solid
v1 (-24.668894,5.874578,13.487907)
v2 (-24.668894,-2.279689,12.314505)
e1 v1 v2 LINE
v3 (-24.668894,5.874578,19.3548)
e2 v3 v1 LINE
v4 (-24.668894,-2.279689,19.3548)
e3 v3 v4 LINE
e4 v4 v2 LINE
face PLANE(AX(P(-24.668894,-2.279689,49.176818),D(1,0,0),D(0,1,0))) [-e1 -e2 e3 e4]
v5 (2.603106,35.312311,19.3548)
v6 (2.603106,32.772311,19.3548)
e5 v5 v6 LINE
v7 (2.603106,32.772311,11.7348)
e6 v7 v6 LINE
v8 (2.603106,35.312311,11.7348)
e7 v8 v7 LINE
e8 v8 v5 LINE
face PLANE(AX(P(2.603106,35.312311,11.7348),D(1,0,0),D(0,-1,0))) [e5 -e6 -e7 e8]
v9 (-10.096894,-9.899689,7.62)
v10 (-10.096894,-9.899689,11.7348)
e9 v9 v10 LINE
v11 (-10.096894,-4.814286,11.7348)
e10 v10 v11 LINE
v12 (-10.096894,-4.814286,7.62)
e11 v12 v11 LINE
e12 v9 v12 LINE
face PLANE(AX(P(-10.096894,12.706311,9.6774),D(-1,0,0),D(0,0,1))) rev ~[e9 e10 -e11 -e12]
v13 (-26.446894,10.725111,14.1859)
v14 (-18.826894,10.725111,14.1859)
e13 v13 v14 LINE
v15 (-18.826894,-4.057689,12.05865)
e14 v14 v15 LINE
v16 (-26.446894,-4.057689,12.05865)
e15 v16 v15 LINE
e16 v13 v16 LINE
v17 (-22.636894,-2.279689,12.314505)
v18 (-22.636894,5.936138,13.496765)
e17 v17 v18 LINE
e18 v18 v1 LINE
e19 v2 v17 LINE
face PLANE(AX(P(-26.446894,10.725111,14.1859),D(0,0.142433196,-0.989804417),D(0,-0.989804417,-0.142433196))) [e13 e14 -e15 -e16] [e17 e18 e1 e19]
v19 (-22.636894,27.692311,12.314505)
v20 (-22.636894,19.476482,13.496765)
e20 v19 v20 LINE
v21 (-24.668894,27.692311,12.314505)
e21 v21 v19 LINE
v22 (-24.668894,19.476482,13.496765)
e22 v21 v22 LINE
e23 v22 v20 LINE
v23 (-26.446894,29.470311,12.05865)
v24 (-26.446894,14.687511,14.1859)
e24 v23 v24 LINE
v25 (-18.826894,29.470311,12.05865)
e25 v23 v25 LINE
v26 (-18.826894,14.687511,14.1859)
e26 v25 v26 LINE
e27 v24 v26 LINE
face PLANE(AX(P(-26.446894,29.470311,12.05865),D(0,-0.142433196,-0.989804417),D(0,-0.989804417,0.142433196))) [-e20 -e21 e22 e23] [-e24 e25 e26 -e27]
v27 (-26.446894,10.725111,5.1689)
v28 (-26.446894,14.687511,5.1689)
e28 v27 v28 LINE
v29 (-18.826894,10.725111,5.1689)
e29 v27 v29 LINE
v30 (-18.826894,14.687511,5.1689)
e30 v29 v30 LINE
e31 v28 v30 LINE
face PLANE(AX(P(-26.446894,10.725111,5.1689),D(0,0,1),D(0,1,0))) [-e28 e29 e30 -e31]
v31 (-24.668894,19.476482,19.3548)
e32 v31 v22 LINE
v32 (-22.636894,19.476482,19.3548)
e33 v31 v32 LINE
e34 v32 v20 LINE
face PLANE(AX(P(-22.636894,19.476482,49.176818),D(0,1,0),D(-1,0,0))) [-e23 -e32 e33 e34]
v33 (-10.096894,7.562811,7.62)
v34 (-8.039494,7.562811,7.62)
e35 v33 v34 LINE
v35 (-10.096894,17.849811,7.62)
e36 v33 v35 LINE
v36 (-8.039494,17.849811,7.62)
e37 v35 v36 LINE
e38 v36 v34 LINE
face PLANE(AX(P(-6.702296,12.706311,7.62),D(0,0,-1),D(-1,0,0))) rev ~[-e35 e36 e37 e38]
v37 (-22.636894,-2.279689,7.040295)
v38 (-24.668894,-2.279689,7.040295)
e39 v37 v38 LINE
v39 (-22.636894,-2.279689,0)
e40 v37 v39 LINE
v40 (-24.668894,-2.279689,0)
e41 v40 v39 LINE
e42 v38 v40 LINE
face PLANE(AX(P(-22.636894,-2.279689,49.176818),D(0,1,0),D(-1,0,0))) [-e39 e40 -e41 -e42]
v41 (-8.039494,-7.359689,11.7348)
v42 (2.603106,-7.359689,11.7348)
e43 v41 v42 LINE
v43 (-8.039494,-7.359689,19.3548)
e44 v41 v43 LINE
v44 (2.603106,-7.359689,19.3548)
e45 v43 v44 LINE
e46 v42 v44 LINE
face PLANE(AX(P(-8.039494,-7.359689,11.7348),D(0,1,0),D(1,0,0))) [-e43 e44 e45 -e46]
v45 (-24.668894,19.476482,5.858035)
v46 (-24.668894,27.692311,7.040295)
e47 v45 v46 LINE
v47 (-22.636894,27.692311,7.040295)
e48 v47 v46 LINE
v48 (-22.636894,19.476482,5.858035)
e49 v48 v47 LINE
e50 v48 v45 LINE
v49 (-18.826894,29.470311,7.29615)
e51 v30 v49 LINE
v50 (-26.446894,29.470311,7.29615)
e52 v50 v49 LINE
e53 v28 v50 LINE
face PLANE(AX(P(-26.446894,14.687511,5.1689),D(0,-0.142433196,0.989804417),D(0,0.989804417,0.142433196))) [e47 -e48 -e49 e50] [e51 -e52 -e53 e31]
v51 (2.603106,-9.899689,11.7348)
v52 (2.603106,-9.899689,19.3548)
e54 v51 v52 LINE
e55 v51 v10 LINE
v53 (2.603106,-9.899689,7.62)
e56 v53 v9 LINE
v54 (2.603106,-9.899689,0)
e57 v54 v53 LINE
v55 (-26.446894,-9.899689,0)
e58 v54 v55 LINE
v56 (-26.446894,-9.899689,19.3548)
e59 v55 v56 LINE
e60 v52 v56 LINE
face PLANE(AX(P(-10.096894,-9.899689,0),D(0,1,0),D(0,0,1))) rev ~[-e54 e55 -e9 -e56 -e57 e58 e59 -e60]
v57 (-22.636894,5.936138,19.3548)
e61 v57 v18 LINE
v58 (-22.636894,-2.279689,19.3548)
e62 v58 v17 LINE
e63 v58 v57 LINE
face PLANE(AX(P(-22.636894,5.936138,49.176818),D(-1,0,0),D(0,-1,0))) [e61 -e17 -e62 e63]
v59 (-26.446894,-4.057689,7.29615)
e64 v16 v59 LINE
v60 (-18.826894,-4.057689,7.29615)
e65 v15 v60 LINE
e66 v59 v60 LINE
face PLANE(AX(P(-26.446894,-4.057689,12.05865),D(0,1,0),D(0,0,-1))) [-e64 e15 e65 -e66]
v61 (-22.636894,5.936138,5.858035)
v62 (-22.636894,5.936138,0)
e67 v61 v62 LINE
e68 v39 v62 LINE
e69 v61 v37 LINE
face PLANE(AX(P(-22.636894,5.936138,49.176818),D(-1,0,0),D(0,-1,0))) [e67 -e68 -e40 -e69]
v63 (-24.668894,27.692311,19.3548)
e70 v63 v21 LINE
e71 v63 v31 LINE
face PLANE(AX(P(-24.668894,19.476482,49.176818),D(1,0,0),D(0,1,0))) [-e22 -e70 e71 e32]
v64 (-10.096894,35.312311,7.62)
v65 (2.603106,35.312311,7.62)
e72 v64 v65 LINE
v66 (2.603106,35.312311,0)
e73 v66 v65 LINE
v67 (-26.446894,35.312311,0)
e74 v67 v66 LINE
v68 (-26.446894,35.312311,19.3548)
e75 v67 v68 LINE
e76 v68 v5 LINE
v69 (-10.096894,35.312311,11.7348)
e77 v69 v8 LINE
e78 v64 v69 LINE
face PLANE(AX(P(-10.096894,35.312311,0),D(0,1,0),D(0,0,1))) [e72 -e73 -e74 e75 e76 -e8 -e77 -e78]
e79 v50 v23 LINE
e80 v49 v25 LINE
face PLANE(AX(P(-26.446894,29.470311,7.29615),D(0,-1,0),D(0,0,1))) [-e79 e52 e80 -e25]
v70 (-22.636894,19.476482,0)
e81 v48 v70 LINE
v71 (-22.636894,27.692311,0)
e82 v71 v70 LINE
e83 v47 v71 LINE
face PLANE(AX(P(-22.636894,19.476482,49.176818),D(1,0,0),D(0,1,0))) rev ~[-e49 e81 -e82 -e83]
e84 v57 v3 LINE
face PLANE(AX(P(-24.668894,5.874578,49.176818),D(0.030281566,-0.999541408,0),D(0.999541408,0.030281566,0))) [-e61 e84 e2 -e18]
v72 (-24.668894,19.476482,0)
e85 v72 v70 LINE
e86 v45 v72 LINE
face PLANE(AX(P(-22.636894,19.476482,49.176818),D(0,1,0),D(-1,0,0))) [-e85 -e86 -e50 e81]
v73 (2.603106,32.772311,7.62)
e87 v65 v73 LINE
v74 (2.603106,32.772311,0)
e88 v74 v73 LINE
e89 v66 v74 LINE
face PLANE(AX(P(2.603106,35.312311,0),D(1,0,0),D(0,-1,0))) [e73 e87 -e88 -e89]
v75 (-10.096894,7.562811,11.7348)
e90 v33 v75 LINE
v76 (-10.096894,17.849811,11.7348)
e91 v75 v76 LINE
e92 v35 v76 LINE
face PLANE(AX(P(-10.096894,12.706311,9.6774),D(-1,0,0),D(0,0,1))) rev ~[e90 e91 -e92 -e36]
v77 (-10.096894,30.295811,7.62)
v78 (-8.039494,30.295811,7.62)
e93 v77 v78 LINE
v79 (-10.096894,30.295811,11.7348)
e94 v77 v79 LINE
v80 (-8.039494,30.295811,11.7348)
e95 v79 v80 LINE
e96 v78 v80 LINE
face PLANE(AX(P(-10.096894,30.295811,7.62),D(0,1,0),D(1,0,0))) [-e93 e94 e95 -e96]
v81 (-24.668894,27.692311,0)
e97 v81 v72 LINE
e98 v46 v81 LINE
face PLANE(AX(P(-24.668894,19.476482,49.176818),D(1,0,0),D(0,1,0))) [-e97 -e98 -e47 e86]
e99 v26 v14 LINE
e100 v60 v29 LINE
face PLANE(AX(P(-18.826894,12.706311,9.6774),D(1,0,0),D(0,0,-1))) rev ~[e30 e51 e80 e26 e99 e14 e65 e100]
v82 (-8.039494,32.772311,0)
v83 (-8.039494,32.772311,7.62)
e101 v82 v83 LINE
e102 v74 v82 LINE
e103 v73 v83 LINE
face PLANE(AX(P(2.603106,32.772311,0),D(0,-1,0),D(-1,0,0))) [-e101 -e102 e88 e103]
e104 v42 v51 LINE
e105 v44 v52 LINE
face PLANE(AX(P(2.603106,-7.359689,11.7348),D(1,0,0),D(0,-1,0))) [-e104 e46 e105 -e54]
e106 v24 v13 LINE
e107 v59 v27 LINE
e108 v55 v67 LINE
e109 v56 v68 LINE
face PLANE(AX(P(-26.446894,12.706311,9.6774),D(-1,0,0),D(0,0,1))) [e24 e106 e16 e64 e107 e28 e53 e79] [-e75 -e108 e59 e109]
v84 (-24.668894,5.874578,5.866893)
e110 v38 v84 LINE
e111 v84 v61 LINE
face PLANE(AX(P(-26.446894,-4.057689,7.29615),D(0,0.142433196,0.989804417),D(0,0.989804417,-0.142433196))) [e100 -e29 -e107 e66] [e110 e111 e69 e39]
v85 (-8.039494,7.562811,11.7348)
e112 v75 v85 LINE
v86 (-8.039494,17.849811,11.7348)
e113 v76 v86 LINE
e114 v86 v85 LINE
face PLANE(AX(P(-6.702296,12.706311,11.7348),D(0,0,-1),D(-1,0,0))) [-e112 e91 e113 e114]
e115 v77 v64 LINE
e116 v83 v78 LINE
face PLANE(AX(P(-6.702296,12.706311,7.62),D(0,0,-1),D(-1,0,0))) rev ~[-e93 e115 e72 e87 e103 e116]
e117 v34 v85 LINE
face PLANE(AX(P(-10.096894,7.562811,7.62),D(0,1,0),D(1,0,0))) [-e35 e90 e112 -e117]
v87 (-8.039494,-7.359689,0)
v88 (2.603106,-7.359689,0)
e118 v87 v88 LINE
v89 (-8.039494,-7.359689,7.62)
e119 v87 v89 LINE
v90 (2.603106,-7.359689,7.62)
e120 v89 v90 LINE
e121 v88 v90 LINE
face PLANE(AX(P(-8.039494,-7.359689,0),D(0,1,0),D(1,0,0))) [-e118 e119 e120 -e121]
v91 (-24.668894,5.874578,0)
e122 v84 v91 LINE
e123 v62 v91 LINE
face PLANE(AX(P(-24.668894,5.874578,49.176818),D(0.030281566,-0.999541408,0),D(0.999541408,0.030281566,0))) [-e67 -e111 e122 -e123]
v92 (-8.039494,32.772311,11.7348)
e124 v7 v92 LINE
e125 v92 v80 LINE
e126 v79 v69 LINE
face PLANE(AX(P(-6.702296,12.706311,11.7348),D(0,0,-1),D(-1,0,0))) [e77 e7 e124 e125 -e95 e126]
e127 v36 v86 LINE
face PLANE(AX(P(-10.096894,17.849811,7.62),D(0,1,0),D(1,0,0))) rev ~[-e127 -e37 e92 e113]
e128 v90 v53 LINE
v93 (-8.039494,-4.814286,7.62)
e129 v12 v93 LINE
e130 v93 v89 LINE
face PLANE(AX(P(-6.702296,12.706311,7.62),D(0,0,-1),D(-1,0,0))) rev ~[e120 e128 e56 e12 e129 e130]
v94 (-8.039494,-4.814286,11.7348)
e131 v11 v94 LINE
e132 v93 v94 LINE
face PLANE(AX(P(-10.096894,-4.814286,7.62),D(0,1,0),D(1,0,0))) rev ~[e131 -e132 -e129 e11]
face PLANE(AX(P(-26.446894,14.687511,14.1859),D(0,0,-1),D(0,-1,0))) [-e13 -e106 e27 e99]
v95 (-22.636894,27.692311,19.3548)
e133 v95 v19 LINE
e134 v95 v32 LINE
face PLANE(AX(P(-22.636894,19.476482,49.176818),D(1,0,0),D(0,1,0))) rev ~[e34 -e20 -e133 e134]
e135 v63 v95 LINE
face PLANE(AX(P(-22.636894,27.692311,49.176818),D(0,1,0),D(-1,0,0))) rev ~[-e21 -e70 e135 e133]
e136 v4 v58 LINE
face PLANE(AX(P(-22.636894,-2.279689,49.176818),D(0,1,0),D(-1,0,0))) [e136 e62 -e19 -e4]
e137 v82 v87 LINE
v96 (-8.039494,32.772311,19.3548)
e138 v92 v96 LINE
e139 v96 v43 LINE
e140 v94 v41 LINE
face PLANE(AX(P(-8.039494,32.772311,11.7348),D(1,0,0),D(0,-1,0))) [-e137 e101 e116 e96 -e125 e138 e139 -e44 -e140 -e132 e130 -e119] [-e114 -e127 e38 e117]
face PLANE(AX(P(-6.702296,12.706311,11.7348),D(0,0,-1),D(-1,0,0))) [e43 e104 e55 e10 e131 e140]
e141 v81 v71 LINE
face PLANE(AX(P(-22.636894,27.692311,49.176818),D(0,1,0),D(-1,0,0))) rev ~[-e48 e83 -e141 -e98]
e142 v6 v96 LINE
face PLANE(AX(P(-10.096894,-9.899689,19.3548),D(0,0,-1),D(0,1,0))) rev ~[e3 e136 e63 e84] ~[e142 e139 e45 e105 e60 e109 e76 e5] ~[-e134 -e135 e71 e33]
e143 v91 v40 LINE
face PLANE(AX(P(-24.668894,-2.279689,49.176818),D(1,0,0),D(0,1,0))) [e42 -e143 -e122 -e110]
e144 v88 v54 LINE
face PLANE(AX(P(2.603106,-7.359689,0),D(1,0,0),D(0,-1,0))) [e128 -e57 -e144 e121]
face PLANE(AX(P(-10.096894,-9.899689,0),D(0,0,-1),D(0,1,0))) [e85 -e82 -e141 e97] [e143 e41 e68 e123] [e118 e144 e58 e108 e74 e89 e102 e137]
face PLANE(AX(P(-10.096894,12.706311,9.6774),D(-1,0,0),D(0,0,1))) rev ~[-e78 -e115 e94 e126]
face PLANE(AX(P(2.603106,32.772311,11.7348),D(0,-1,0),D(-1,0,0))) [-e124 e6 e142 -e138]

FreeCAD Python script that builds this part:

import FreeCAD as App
import Part
import Sketcher

V = App.Vector
Q = App.Units.Quantity


def add_polygon(sketch, points):
    """Adds a closed chain of lines whose ends are joined by coincident constraints."""
    first, n = sketch.GeometryCount, len(points)
    for a, b in zip(points, points[1:] + points[:1]):
        sketch.addGeometry(Part.LineSegment(App.Vector(*a, 0), App.Vector(*b, 0)), False)
    for i in range(n):
        sketch.addConstraint(Sketcher.Constraint("Coincident", first + i, 2, first + (i + 1) % n, 1))

doc = App.newDocument("Part")
params = doc.addObject("Spreadsheet::Sheet", "Params")
for row, (alias, value) in enumerate([
    ("sketch1_width", "0.5 in"),
    ("sketch1_height", "0.1 in"),
    ("sketch1_height2", "1.78 in"),
    ("sketch1_width2", "0.419 in"),
    ("pad1_length", "0.3 in"),
    ("sketch2_height", "0.49 in"),
    ("sketch2_width", "0.081 in"),
    ("pad2_length", "0.162 in"),
    ("sketch3_width", "0.5 in"),
    ("sketch3_height", "0.1 in"),
    ("sketch3_height2", "1.78 in"),
    ("sketch3_width2", "0.419 in"),
    ("pad3_length", "0.3 in"),
    ("sketch4_width", "1.78 in"),
    ("sketch4_height", "0.762 in"),
    ("pad4_length", "16.35 mm"),
    ("sketch5_width", "0.156 in"),
    ("sketch5_height", "0.1875 in"),
    ("pocket1_length", "0.3 in"),
    ("sketch6_width", "0.08 in"),
], start=1):
    params.set(f"A{row}", alias)
    params.set(f"B{row}", "=" + value)
    params.setAlias(f"B{row}", alias)

body = doc.addObject("PartDesign::Body", "Body")

sketch1 = body.newObject("Sketcher::SketchObject", "Sketch")
sketch1.AttachmentSupport = (doc.getObject("XY_Plane"), [""])
sketch1.MapMode = "FlatFace"
add_polygon(sketch1, [(2.6, 32.8), (2.6, 35.3), (-10.1, 35.3), (-10.1, -9.9), (2.6, -9.9), (2.6, -7.4), (-8, -7.4), (-8, 32.8)])
sketch1.addConstraint(Sketcher.Constraint("Vertical", 0))
sketch1.addConstraint(Sketcher.Constraint("Horizontal", 1))
sketch1.addConstraint(Sketcher.Constraint("Vertical", 2))
sketch1.addConstraint(Sketcher.Constraint("Horizontal", 3))
sketch1.addConstraint(Sketcher.Constraint("Vertical", 4))
sketch1.addConstraint(Sketcher.Constraint("Horizontal", 5))
sketch1.addConstraint(Sketcher.Constraint("Vertical", 6))
sketch1.addConstraint(Sketcher.Constraint("Horizontal", 7))
sketch1.addConstraint(Sketcher.Constraint("Vertical", 0, 2, 3, 2))
sketch1.addConstraint(Sketcher.Constraint("Equal", 0, 4))
sketch1.addConstraint(Sketcher.Constraint("DistanceX", 1, 2, 1, 1, Q("0.5 in")))
sketch1.addConstraint(Sketcher.Constraint("DistanceY", 0, 1, 0, 2, Q("0.1 in")))
sketch1.addConstraint(Sketcher.Constraint("DistanceY", 2, 2, 2, 1, Q("1.78 in")))
sketch1.addConstraint(Sketcher.Constraint("DistanceX", 5, 2, 5, 1, Q("0.419 in")))
sketch1.addConstraint(Sketcher.Constraint("DistanceY", -1, 1, 0, 2, 35.312311))
sketch1.addConstraint(Sketcher.Constraint("DistanceX", -1, 1, 0, 2, 2.603106))
sketch1.setExpression("Constraints[18]", "Params.sketch1_width")
sketch1.setExpression("Constraints[19]", "Params.sketch1_height")
sketch1.setExpression("Constraints[20]", "Params.sketch1_height2")
sketch1.setExpression("Constraints[21]", "Params.sketch1_width2")
pad1 = body.newObject("PartDesign::Pad", "Pad")
pad1.Profile = sketch1
pad1.setExpression("Length", "Params.pad1_length")

sketch2 = body.newObject("Sketcher::SketchObject", "Sketch001")
sketch2.AttachmentSupport = (doc.getObject("XY_Plane"), [""])
sketch2.MapMode = "FlatFace"
sketch2.AttachmentOffset = App.Placement(V(0, 0, 0.3 * 25.4), App.Rotation())
add_polygon(sketch2, [(-10.1, 30.3), (-10.1, 17.8), (-8, 17.8), (-8, 30.3)])
add_polygon(sketch2, [(-10.1, 7.6), (-10.1, -4.8), (-8, -4.8), (-8, 7.6)])
sketch2.addConstraint(Sketcher.Constraint("Vertical", 0))
sketch2.addConstraint(Sketcher.Constraint("Horizontal", 1))
sketch2.addConstraint(Sketcher.Constraint("Vertical", 2))
sketch2.addConstraint(Sketcher.Constraint("Horizontal", 3))
sketch2.addConstraint(Sketcher.Constraint("Vertical", 4))
sketch2.addConstraint(Sketcher.Constraint("Horizontal", 5))
sketch2.addConstraint(Sketcher.Constraint("Vertical", 6))
sketch2.addConstraint(Sketcher.Constraint("Horizontal", 7))
sketch2.addConstraint(Sketcher.Constraint("Vertical", 3, 2, 4, 2))
sketch2.addConstraint(Sketcher.Constraint("Vertical", 2, 2, 5, 2))
sketch2.addConstraint(Sketcher.Constraint("DistanceY", 0, 2, 0, 1, Q("0.49 in")))
sketch2.addConstraint(Sketcher.Constraint("DistanceX", 1, 1, 1, 2, Q("0.081 in")))
sketch2.addConstraint(Sketcher.Constraint("DistanceY", 6, 2, 1, 2, Q("0.405 in")))
sketch2.addConstraint(Sketcher.Constraint("DistanceY", 4, 2, 4, 1, 12.377097))
sketch2.addConstraint(Sketcher.Constraint("DistanceY", -1, 1, 0, 2, 17.849811))
sketch2.addConstraint(Sketcher.Constraint("DistanceX", 0, 2, -1, 1, 10.096894))
sketch2.setExpression("Constraints[18]", "Params.sketch2_height")
sketch2.setExpression("Constraints[19]", "Params.sketch2_width")
pad2 = body.newObject("PartDesign::Pad", "Pad001")
pad2.Profile = sketch2
pad2.setExpression("Length", "Params.pad2_length")

sketch3 = body.newObject("Sketcher::SketchObject", "Sketch002")
sketch3.AttachmentSupport = (doc.getObject("XY_Plane"), [""])
sketch3.MapMode = "FlatFace"
sketch3.AttachmentOffset = App.Placement(V(0, 0, 0.462 * 25.4), App.Rotation())
add_polygon(sketch3, [(2.6, 32.8), (2.6, 35.3), (-10.1, 35.3), (-10.1, -9.9), (2.6, -9.9), (2.6, -7.4), (-8, -7.4), (-8, 32.8)])
sketch3.addConstraint(Sketcher.Constraint("Vertical", 0))
sketch3.addConstraint(Sketcher.Constraint("Horizontal", 1))
sketch3.addConstraint(Sketcher.Constraint("Vertical", 2))
sketch3.addConstraint(Sketcher.Constraint("Horizontal", 3))
sketch3.addConstraint(Sketcher.Constraint("Vertical", 4))
sketch3.addConstraint(Sketcher.Constraint("Horizontal", 5))
sketch3.addConstraint(Sketcher.Constraint("Vertical", 6))
sketch3.addConstraint(Sketcher.Constraint("Horizontal", 7))
sketch3.addConstraint(Sketcher.Constraint("Vertical", 0, 2, 3, 2))
sketch3.addConstraint(Sketcher.Constraint("Equal", 0, 4))
sketch3.addConstraint(Sketcher.Constraint("DistanceX", 1, 2, 1, 1, Q("0.5 in")))
sketch3.addConstraint(Sketcher.Constraint("DistanceY", 0, 1, 0, 2, Q("0.1 in")))
sketch3.addConstraint(Sketcher.Constraint("DistanceY", 2, 2, 2, 1, Q("1.78 in")))
sketch3.addConstraint(Sketcher.Constraint("DistanceX", 5, 2, 5, 1, Q("0.419 in")))
sketch3.addConstraint(Sketcher.Constraint("DistanceY", -1, 1, 0, 2, 35.312311))
sketch3.addConstraint(Sketcher.Constraint("DistanceX", -1, 1, 0, 2, 2.603106))
sketch3.setExpression("Constraints[18]", "Params.sketch3_width")
sketch3.setExpression("Constraints[19]", "Params.sketch3_height")
sketch3.setExpression("Constraints[20]", "Params.sketch3_height2")
sketch3.setExpression("Constraints[21]", "Params.sketch3_width2")
pad3 = body.newObject("PartDesign::Pad", "Pad002")
pad3.Profile = sketch3
pad3.setExpression("Length", "Params.pad3_length")

sketch4 = body.newObject("Sketcher::SketchObject", "Sketch003")
sketch4.AttachmentSupport = (doc.getObject("YZ_Plane"), [""])
sketch4.MapMode = "FlatFace"
sketch4.AttachmentOffset = App.Placement(V(0, 0, -10.096894), App.Rotation())
add_polygon(sketch4, [(35, 0), (-10, 0), (-10, 19), (35, 19)])
sketch4.addConstraint(Sketcher.Constraint("Horizontal", 0))
sketch4.addConstraint(Sketcher.Constraint("Vertical", 1))
sketch4.addConstraint(Sketcher.Constraint("Horizontal", 2))
sketch4.addConstraint(Sketcher.Constraint("Vertical", 3))
sketch4.addConstraint(Sketcher.Constraint("PointOnObject", 0, 2, -1))
sketch4.addConstraint(Sketcher.Constraint("DistanceX", 0, 2, 0, 1, Q("1.78 in")))
sketch4.addConstraint(Sketcher.Constraint("DistanceY", 1, 1, 1, 2, Q("0.762 in")))
sketch4.addConstraint(Sketcher.Constraint("DistanceX", 0, 2, -1, 1, 9.899689))
sketch4.setExpression("Constraints[9]", "Params.sketch4_width")
sketch4.setExpression("Constraints[10]", "Params.sketch4_height")
pad4 = body.newObject("PartDesign::Pad", "Pad003")
pad4.Profile = sketch4
pad4.setExpression("Length", "Params.pad4_length")
pad4.Reversed = True

sketch5 = body.newObject("Sketcher::SketchObject", "Sketch004")
sketch5.AttachmentSupport = (doc.getObject("YZ_Plane"), [""])
sketch5.MapMode = "FlatFace"
sketch5.AttachmentOffset = App.Placement(V(0, 0, -26.446894), App.Rotation())
add_polygon(sketch5, [(29.5, 12.1), (29.5, 7.3), (14.7, 5.2), (10.7, 5.2), (-4.1, 7.3), (-4.1, 12.1), (10.7, 14.2), (14.7, 14.2)])
sketch5.addConstraint(Sketcher.Constraint("Vertical", 0))
sketch5.addConstraint(Sketcher.Constraint("Horizontal", 2))
sketch5.addConstraint(Sketcher.Constraint("Vertical", 4))
sketch5.addConstraint(Sketcher.Constraint("Horizontal", 6))
sketch5.addConstraint(Sketcher.Constraint("Parallel", 1, 5))
sketch5.addConstraint(Sketcher.Constraint("Parallel", 3, 7))
sketch5.addConstraint(Sketcher.Constraint("Horizontal", 0, 2, 3, 2))
sketch5.addConstraint(Sketcher.Constraint("Horizontal", 4, 2, 7, 2))
sketch5.addConstraint(Sketcher.Constraint("Vertical", 2, 2, 5, 2))
sketch5.addConstraint(Sketcher.Constraint("Vertical", 1, 2, 6, 2))
sketch5.addConstraint(Sketcher.Constraint("DistanceX", 2, 2, 2, 1, Q("0.156 in")))
sketch5.addConstraint(Sketcher.Constraint("DistanceY", 0, 2, 0, 1, Q("0.1875 in")))
sketch5.addConstraint(Sketcher.Constraint("DistanceX", 3, 2, 0, 2, Q("1.32 in")))
sketch5.addConstraint(Sketcher.Constraint("DistanceY", 2, 2, 5, 2, Q("0.355 in")))
sketch5.addConstraint(Sketcher.Constraint("DistanceY", -1, 1, 1, 2, Q("0.2035 in")))
sketch5.addConstraint(Sketcher.Constraint("DistanceX", -1, 1, 0, 2, 29.470311))
sketch5.setExpression("Constraints[18]", "Params.sketch5_width")
sketch5.setExpression("Constraints[19]", "Params.sketch5_height")
pocket1 = body.newObject("PartDesign::Pocket", "Pocket")
pocket1.Profile = sketch5
pocket1.setExpression("Length", "Params.pocket1_length")
pocket1.Reversed = True

sketch6 = body.newObject("Sketcher::SketchObject", "Sketch005")
sketch6.AttachmentSupport = (doc.getObject("XY_Plane"), [""])
sketch6.MapMode = "FlatFace"
add_polygon(sketch6, [(-22.6, 27.7), (-22.6, 19.5), (-24.7, 19.5), (-24.7, 27.7)])
add_polygon(sketch6, [(-24.7, 5.9), (-22.6, 5.9), (-22.6, -2.3), (-24.7, -2.3)])
sketch6.addConstraint(Sketcher.Constraint("Vertical", 0))
sketch6.addConstraint(Sketcher.Constraint("Horizontal", 1))
sketch6.addConstraint(Sketcher.Constraint("Vertical", 2))
sketch6.addConstraint(Sketcher.Constraint("Horizontal", 3))
sketch6.addConstraint(Sketcher.Constraint("Vertical", 5))
sketch6.addConstraint(Sketcher.Constraint("Horizontal", 6))
sketch6.addConstraint(Sketcher.Constraint("Vertical", 7))
sketch6.addConstraint(Sketcher.Constraint("Vertical", 3, 2, 4, 2))
sketch6.addConstraint(Sketcher.Constraint("Vertical", 2, 2, 6, 2))
sketch6.addConstraint(Sketcher.Constraint("Equal", 2, 5))
sketch6.addConstraint(Sketcher.Constraint("DistanceX", 1, 2, 1, 1, Q("0.08 in")))
sketch6.addConstraint(Sketcher.Constraint("DistanceY", 5, 2, 3, 2, Q("1.18 in")))
sketch6.addConstraint(Sketcher.Constraint("DistanceY", 0, 2, 0, 1, 8.215828))
sketch6.addConstraint(Sketcher.Constraint("DistanceY", 7, 1, 7, 2, 8.154268))
sketch6.addConstraint(Sketcher.Constraint("DistanceY", -1, 1, 2, 2, 27.692311))
sketch6.addConstraint(Sketcher.Constraint("DistanceX", 0, 2, -1, 1, 22.636894))
sketch6.setExpression("Constraints[18]", "Params.sketch6_width")
pocket2 = body.newObject("PartDesign::Pocket", "Pocket001")
pocket2.Profile = sketch6
pocket2.Type = "ThroughAll"
pocket2.Midplane = True

doc.recompute()
